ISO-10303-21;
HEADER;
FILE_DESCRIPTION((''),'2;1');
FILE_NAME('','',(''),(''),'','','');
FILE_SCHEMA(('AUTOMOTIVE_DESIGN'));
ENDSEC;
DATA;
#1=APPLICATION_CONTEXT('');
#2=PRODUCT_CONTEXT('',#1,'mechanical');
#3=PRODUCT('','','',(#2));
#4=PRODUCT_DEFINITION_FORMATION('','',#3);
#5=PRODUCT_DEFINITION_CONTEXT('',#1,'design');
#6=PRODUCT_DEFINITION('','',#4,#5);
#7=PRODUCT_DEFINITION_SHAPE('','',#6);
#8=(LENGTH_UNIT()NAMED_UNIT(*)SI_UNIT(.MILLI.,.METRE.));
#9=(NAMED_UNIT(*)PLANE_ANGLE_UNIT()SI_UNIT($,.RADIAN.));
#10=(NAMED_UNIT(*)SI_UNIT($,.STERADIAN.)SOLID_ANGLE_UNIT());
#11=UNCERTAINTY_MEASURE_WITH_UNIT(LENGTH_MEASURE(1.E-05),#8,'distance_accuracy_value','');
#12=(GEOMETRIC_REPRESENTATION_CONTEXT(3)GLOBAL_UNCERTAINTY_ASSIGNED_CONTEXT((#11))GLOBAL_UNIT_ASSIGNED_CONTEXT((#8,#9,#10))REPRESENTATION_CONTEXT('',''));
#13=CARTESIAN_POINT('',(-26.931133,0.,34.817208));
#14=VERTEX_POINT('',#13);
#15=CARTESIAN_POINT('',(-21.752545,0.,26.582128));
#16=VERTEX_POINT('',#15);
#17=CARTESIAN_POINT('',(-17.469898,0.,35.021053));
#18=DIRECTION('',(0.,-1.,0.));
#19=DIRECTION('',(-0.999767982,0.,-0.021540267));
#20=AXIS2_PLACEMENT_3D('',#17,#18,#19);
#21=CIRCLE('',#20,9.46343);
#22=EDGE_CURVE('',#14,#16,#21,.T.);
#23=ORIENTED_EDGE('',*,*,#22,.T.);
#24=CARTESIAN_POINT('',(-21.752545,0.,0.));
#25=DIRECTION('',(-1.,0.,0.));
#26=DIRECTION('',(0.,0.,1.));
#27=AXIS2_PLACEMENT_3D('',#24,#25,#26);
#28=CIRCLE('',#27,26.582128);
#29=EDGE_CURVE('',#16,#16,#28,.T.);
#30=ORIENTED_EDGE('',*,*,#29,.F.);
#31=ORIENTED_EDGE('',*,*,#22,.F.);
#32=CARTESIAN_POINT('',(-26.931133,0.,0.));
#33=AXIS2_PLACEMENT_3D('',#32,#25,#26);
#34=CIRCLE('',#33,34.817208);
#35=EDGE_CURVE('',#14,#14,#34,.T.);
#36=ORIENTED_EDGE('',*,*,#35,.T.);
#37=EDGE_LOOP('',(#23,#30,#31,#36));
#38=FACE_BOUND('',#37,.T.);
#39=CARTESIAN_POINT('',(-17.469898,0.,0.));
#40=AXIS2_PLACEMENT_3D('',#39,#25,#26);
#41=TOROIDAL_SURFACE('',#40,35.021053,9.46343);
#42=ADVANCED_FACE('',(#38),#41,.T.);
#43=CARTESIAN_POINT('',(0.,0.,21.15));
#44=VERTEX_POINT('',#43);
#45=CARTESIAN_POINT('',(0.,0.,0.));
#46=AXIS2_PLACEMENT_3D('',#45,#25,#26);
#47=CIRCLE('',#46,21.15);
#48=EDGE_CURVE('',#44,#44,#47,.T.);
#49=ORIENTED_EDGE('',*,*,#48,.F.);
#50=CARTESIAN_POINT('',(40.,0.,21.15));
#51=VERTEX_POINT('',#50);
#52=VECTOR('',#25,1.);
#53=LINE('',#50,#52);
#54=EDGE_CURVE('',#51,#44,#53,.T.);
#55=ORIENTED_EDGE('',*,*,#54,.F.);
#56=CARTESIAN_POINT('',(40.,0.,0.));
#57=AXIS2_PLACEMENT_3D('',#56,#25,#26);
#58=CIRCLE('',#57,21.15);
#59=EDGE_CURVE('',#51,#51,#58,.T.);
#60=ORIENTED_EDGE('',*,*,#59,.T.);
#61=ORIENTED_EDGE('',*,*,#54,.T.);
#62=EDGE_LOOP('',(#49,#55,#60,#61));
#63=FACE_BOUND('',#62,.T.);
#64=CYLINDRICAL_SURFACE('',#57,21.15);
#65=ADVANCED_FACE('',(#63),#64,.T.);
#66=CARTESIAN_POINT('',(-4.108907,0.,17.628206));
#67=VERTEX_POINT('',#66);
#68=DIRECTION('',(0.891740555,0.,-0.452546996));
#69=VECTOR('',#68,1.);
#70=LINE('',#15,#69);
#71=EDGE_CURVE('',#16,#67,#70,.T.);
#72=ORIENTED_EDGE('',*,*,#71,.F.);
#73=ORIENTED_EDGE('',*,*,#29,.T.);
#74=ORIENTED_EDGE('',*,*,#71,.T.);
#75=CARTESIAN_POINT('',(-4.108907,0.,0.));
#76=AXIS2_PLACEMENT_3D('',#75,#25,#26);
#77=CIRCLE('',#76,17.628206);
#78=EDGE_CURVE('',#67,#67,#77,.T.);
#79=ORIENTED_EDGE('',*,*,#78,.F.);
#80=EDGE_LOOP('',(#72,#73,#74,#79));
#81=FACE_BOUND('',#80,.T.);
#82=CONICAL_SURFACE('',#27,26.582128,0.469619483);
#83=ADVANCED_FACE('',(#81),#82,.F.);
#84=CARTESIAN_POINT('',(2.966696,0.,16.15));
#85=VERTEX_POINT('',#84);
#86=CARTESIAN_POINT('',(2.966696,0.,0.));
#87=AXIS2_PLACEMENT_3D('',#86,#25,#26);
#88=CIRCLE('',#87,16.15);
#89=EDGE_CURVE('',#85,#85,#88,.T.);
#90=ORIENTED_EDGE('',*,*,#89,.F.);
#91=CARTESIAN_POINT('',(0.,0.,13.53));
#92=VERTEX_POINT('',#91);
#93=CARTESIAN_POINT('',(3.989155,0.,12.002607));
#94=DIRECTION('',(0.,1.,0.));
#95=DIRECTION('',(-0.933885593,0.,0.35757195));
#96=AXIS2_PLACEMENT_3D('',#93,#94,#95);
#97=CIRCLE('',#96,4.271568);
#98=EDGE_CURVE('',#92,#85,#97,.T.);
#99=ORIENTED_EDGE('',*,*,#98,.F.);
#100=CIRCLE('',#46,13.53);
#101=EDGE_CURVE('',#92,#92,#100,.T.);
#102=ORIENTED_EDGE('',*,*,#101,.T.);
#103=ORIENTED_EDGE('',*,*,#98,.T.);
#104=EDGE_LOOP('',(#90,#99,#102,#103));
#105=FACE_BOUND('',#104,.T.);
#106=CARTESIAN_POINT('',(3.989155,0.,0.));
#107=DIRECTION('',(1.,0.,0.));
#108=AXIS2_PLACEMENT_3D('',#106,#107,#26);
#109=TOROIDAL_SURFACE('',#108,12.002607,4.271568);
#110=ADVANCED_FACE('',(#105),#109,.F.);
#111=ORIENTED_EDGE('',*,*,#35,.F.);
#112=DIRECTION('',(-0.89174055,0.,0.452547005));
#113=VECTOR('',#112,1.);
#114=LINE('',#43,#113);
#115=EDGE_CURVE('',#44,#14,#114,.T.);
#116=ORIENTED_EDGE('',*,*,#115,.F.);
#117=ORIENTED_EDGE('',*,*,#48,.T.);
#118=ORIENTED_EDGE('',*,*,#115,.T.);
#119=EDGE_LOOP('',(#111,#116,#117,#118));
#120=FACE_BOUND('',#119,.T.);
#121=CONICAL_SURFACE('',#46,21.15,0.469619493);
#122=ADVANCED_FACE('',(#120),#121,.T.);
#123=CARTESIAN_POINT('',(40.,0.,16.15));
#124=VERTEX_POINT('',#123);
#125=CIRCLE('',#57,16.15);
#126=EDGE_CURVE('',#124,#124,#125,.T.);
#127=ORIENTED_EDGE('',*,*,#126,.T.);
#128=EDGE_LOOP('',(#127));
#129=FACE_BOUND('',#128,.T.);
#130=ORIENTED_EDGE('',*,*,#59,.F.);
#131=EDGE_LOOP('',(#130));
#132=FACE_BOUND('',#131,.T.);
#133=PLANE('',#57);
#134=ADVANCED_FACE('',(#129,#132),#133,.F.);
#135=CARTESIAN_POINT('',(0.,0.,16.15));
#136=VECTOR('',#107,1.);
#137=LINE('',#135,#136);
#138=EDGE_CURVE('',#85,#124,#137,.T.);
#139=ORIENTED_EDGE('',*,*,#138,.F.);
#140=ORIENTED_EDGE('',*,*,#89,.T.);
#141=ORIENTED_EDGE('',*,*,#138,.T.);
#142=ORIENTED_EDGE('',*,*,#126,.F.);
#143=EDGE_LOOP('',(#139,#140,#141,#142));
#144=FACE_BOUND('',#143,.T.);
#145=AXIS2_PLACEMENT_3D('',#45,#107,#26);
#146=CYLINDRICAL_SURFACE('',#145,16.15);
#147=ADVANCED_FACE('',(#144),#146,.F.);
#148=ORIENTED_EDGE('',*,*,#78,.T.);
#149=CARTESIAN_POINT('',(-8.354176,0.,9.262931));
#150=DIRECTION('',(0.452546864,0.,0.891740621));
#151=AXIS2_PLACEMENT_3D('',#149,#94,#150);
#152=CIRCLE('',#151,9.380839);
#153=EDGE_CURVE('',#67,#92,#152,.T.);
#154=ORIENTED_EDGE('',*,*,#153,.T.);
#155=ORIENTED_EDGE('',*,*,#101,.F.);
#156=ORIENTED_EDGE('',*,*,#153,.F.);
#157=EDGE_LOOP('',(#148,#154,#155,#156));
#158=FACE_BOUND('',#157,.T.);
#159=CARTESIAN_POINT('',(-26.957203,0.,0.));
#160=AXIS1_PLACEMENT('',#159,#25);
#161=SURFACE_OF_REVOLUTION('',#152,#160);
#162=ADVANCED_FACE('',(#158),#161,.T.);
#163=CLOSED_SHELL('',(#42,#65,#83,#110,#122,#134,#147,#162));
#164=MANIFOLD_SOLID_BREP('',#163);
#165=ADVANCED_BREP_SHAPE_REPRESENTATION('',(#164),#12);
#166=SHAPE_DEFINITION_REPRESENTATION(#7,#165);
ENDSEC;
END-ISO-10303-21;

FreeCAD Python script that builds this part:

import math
import FreeCAD as App
import Part
import Sketcher
from FreeCAD import Vector

doc = App.newDocument("Part")
body = doc.addObject("PartDesign::Body", "Body")

# Sketch on XZ plane
sketch1 = body.newObject("Sketcher::SketchObject", "Sketch")
sketch1.AttachmentSupport = (doc.getObject("XZ_Plane"), [""])
sketch1.MapMode = "FlatFace"
sketch1.addGeometry([
    Part.LineSegment(Vector(40, 16.1, 0), Vector(40, 21.1, 0)),  # 0
    Part.LineSegment(Vector(40, 21.1, 0), Vector(0, 21.1, 0)),  # 1
    Part.LineSegment(Vector(0, 21.1, 0), Vector(-26.9, 34.8, 0)),  # 2
    Part.ArcOfCircle(Part.Circle(Vector(-17.5, 35, 0), Vector(0, 0, 1), 9.5), math.radians(-179), math.radians(-117)),  # 3
    Part.LineSegment(Vector(-21.8, 26.6, 0), Vector(-4.1, 17.6, 0)),  # 4
    Part.ArcOfCircle(Part.Circle(Vector(-8.4, 9.3, 0), Vector(0, 0, 1), 9.4), math.radians(27), math.radians(63)),  # 5
    Part.ArcOfCircle(Part.Circle(Vector(4, 12, 0), Vector(0, 0, 1), 4.3), math.radians(104), math.radians(159)),  # 6
    Part.LineSegment(Vector(3, 16.1, 0), Vector(40, 16.1, 0)),  # 7
], False)
sketch1.addConstraint([
    Sketcher.Constraint("Coincident", 0, 2, 1, 1),
    Sketcher.Constraint("Coincident", 1, 2, 2, 1),
    Sketcher.Constraint("Coincident", 2, 2, 3, 1),
    Sketcher.Constraint("Tangent", 3, 2, 4, 1),
    Sketcher.Constraint("Tangent", 4, 2, 5, 2),
    Sketcher.Constraint("Coincident", 5, 1, 6, 2),
    Sketcher.Constraint("Coincident", 6, 1, 7, 1),
    Sketcher.Constraint("Coincident", 7, 2, 0, 1),
    Sketcher.Constraint("Vertical", 0),
    Sketcher.Constraint("Horizontal", 1),
    Sketcher.Constraint("Horizontal", 7),
    Sketcher.Constraint("PointOnObject", 1, 2, -2),
    Sketcher.Constraint("PointOnObject", 5, 1, -2),
    Sketcher.Constraint("Parallel", 2, 4),
    Sketcher.Constraint("DistanceX", 1, 2, 1, 1, 40.0),
    Sketcher.Constraint("DistanceY", 0, 1, 0, 2, 5.0),
    Sketcher.Constraint("DistanceY", -1, 1, 0, 2, 21.15),
    Sketcher.Constraint("DistanceY", -1, 1, 5, 1, 13.53),
    Sketcher.Constraint("Radius", 3, 9.46343),
    Sketcher.Constraint("Radius", 5, 9.380839),
    Sketcher.Constraint("Radius", 6, 4.271568),
    Sketcher.Constraint("DistanceX", 3, 3, -1, 1, 17.469898),
    Sketcher.Constraint("DistanceY", 6, 3, 2, 2, 22.814601),
    Sketcher.Constraint("DistanceX", 3, 2, 6, 3, 25.7417),
    Sketcher.Constraint("DistanceY", 6, 3, 4, 2, 5.625599),
])
revolution = body.newObject("PartDesign::Revolution", "Revolution")
revolution.Profile = sketch1
revolution.ReferenceAxis = (sketch1, ["H_Axis"])
revolution.Angle = 360

doc.recompute()
